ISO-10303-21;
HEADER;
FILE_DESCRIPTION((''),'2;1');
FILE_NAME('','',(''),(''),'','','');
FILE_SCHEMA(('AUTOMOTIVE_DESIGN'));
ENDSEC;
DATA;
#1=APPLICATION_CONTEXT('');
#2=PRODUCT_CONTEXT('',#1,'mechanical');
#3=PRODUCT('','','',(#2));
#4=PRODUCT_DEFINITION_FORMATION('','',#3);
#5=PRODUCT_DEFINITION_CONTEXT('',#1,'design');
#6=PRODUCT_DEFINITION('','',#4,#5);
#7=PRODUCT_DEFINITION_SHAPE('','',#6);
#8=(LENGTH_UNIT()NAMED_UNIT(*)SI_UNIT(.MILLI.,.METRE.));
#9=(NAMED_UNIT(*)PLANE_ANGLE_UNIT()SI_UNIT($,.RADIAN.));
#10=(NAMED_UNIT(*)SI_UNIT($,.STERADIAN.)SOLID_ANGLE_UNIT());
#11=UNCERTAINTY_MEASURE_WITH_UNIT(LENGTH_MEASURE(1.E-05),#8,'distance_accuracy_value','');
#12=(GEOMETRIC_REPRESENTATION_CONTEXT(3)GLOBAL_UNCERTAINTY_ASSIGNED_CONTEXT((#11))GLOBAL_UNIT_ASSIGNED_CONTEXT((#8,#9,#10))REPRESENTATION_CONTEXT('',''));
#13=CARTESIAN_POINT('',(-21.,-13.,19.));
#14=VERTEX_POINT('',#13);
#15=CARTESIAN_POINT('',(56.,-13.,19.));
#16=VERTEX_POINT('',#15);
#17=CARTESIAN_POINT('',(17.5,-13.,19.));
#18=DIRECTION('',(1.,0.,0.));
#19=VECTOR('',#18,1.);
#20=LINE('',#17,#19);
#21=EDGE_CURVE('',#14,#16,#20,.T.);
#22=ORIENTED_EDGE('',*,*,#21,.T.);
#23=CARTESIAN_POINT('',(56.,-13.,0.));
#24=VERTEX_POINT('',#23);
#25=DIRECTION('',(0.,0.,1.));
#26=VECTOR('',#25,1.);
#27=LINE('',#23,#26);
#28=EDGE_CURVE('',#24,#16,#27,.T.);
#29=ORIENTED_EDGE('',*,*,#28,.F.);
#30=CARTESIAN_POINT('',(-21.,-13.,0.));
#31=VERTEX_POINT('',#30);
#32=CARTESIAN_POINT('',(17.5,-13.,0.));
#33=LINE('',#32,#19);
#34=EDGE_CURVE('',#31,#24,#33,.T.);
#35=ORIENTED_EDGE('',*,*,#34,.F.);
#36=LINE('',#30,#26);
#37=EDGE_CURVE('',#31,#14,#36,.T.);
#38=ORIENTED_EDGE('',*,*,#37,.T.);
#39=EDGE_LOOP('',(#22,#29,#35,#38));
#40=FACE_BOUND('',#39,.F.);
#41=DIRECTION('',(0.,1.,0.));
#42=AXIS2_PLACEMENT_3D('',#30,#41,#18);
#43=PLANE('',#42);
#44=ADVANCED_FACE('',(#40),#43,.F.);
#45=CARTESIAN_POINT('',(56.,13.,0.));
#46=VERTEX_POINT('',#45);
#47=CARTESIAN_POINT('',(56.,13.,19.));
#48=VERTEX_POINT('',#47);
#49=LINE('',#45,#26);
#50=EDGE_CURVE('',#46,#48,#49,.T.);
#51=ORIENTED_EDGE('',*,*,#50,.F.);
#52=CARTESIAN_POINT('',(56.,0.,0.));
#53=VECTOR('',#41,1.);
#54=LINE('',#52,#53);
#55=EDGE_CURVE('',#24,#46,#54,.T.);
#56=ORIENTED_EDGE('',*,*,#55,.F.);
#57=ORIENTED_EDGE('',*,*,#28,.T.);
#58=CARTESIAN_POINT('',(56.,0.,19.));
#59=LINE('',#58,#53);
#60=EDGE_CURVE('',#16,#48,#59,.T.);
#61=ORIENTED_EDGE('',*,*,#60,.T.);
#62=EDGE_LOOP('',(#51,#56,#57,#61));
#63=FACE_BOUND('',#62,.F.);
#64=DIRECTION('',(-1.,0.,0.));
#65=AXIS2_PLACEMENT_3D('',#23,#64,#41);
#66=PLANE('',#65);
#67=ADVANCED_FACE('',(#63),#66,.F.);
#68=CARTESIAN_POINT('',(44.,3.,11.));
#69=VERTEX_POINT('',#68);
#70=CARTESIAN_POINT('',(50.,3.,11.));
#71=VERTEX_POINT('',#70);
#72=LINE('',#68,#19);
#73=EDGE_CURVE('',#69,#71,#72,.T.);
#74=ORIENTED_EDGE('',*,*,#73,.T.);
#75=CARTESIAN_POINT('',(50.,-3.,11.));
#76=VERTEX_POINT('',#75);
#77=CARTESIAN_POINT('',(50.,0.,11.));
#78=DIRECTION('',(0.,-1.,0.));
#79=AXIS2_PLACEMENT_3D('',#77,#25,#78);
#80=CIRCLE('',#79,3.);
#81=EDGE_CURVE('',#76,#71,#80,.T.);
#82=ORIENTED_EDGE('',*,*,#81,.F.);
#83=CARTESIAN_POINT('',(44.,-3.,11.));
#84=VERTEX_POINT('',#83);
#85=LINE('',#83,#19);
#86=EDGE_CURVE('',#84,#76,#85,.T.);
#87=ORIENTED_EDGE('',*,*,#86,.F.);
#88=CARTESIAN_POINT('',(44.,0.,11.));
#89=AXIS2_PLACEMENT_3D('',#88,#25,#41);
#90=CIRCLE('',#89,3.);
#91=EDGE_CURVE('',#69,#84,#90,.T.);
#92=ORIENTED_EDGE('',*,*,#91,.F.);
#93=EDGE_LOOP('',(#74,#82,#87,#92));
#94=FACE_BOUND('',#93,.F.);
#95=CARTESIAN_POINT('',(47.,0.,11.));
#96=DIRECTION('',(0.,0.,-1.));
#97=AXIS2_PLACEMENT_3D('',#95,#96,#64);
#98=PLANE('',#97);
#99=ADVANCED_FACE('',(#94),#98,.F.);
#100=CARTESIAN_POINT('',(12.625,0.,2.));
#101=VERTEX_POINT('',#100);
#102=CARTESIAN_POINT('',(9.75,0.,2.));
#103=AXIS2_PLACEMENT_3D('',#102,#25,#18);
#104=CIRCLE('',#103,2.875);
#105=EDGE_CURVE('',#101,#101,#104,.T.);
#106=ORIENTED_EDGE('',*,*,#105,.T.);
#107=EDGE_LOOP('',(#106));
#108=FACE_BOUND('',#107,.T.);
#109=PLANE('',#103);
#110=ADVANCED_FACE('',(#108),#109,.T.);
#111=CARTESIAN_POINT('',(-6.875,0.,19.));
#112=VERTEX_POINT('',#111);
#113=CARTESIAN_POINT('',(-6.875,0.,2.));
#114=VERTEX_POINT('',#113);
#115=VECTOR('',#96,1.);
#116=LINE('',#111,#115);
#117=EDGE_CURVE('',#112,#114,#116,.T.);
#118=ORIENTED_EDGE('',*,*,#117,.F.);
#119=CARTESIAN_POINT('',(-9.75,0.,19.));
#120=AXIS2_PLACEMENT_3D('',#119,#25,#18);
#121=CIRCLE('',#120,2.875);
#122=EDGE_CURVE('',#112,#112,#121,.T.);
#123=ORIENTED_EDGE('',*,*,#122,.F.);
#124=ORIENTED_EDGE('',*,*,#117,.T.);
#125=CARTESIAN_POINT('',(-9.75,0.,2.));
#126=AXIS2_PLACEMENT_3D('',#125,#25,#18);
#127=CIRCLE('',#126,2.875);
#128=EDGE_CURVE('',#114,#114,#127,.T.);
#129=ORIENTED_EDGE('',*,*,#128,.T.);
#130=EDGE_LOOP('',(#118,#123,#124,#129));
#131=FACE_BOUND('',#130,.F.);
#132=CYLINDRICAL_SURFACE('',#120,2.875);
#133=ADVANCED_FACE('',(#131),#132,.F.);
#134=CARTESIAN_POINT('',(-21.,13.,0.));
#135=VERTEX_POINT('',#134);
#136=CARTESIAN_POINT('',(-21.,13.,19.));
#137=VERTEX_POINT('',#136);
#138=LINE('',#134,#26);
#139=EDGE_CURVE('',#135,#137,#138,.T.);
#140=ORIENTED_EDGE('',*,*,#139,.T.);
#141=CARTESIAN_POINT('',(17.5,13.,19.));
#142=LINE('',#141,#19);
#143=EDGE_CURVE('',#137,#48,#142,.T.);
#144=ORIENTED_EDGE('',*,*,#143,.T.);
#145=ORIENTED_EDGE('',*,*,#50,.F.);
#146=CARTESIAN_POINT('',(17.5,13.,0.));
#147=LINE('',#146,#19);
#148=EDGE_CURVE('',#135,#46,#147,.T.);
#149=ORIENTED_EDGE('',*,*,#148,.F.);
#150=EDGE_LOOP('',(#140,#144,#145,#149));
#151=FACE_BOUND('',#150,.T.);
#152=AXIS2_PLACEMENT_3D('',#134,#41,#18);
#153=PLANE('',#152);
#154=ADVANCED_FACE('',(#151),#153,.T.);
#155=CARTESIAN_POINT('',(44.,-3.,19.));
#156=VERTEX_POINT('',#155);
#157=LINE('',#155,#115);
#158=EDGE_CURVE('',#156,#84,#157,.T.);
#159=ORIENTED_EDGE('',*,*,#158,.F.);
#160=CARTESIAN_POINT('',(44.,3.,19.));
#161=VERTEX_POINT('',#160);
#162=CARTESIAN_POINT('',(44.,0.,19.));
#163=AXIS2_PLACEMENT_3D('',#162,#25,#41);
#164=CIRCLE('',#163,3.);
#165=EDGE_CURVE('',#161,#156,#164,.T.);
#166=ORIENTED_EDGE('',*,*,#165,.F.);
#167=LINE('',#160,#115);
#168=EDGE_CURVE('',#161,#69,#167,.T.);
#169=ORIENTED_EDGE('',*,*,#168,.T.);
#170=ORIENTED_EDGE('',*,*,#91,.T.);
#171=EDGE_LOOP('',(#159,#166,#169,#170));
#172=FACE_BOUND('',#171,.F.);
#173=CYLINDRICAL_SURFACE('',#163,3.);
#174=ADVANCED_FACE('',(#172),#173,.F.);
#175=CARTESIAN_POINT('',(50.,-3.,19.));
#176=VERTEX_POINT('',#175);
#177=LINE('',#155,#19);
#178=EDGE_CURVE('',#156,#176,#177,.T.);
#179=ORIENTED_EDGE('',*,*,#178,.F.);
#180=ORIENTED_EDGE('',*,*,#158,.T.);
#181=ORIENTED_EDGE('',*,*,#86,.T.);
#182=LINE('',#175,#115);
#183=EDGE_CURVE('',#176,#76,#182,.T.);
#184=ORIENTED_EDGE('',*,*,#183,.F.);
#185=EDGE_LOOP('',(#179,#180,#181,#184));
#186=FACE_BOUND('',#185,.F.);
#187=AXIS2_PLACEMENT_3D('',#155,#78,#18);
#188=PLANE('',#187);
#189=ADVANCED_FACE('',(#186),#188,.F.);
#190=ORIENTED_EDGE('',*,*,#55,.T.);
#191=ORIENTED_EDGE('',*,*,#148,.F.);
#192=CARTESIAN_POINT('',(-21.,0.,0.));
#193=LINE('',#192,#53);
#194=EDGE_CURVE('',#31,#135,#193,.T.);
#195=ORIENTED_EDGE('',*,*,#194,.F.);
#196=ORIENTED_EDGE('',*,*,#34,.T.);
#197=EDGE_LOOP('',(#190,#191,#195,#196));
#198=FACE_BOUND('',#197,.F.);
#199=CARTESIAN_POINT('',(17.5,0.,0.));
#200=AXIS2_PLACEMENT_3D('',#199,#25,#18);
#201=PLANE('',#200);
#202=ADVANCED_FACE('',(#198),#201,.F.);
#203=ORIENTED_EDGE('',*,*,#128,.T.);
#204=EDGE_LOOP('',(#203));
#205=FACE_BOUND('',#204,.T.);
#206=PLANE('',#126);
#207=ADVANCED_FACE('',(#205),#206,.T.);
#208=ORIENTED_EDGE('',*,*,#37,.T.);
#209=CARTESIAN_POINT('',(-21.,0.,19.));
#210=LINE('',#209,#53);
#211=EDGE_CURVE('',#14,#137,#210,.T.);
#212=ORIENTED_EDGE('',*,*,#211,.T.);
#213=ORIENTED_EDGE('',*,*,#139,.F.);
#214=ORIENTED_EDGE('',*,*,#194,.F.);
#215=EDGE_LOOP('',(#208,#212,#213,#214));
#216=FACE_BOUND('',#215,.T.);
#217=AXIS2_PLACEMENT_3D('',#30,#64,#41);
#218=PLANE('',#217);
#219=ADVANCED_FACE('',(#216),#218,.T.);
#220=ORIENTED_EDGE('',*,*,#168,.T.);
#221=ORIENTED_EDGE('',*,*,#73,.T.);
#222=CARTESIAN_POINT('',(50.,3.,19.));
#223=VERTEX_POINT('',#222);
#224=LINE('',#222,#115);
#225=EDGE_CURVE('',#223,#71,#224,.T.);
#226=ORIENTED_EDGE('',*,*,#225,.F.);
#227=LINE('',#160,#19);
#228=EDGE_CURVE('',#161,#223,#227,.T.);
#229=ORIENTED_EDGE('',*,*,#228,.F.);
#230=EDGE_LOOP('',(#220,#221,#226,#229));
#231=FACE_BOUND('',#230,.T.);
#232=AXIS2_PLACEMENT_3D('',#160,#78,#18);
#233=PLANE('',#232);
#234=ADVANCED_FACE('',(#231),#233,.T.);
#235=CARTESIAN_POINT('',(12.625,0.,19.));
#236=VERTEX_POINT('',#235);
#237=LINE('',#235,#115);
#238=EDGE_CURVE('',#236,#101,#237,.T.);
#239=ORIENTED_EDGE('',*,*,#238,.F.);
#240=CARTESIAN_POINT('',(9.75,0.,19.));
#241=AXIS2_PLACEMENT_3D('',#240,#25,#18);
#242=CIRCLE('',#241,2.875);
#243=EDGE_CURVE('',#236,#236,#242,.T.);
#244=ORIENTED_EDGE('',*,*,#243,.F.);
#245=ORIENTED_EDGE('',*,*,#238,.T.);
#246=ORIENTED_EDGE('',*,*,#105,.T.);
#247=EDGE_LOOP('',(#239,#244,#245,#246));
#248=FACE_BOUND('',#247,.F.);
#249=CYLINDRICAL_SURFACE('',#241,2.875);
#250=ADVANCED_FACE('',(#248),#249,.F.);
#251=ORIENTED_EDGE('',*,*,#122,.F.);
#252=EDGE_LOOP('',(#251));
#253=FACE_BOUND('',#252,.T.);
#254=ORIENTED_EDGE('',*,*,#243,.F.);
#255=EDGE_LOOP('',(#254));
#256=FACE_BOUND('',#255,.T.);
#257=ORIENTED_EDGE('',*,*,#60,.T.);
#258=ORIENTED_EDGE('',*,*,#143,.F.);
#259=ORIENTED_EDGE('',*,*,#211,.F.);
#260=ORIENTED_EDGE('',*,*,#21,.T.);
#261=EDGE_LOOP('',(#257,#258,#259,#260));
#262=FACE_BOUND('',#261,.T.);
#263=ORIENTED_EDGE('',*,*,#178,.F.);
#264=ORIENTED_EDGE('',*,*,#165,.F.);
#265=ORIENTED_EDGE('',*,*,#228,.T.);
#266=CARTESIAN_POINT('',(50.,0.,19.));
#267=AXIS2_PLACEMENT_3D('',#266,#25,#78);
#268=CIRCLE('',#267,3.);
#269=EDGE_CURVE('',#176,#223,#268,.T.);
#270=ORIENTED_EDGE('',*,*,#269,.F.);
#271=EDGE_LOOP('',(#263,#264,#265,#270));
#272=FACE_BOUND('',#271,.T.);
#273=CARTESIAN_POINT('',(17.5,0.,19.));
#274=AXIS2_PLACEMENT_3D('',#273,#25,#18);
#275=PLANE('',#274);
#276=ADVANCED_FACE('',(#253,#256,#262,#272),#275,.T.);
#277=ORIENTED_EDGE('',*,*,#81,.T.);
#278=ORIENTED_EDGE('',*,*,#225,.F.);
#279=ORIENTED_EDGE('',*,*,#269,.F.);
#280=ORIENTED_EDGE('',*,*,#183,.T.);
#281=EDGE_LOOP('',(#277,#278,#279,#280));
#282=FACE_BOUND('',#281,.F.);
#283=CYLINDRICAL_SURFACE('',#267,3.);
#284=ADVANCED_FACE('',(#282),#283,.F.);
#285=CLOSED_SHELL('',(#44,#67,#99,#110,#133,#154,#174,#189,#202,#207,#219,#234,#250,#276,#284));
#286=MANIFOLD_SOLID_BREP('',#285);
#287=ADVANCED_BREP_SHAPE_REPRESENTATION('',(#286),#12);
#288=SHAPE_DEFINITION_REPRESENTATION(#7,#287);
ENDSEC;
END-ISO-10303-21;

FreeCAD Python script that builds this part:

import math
import FreeCAD as App
import Part
import Sketcher

V = App.Vector


def add_polygon(sketch, points):
    """Adds a closed chain of lines whose ends are joined by coincident constraints."""
    first, n = sketch.GeometryCount, len(points)
    for a, b in zip(points, points[1:] + points[:1]):
        sketch.addGeometry(Part.LineSegment(App.Vector(*a, 0), App.Vector(*b, 0)), False)
    for i in range(n):
        sketch.addConstraint(Sketcher.Constraint("Coincident", first + i, 2, first + (i + 1) % n, 1))

doc = App.newDocument("Part")
body = doc.addObject("PartDesign::Body", "Body")

sketch1 = doc.addObject("Sketcher::SketchObject", "Sketch")
body.addObject(sketch1)
sketch1.AttachmentSupport = (doc.XY_Plane, [""])
sketch1.MapMode = "FlatFace"
add_polygon(sketch1, [(-21, 13), (-21, -13), (56, -13), (56, 13)])
sketch1.addConstraint(Sketcher.Constraint("Vertical", 0))
sketch1.addConstraint(Sketcher.Constraint("Horizontal", 1))
sketch1.addConstraint(Sketcher.Constraint("Vertical", 2))
sketch1.addConstraint(Sketcher.Constraint("Horizontal", 3))
sketch1.addConstraint(Sketcher.Constraint("DistanceX", 1, 1, 1, 2, 77.0))
sketch1.addConstraint(Sketcher.Constraint("DistanceY", 0, 2, 0, 1, 26.0))
sketch1.addConstraint(Sketcher.Constraint("DistanceX", 0, 2, -1, 1, 21.0))
sketch1.addConstraint(Sketcher.Constraint("DistanceY", 0, 2, -1, 1, 13.0))
pad1 = doc.addObject("PartDesign::Pad", "Pad")
body.addObject(pad1)
pad1.Profile = sketch1
pad1.Length = 19

sketch2 = doc.addObject("Sketcher::SketchObject", "Sketch001")
body.addObject(sketch2)
sketch2.AttachmentSupport = (doc.XY_Plane, [""])
sketch2.MapMode = "FlatFace"
sketch2.AttachmentOffset = App.Placement(V(0, 0, 19), App.Rotation())
sketch2.addGeometry(Part.Circle(V(-9.8, 0, 0), V(0, 0, 1), 2.9), False)
sketch2.addGeometry(Part.Circle(V(9.8, 0, 0), V(0, 0, 1), 2.9), False)
sketch2.addConstraint(Sketcher.Constraint("Equal", 0, 1))
sketch2.addConstraint(Sketcher.Constraint("Symmetric", 0, 3, 1, 3, -1, 1))
sketch2.addConstraint(Sketcher.Constraint("PointOnObject", 0, 3, -1))
sketch2.addConstraint(Sketcher.Constraint("Diameter", 0, 5.75))
sketch2.addConstraint(Sketcher.Constraint("DistanceX", 0, 3, 1, 3, 19.5))
pocket1 = doc.addObject("PartDesign::Pocket", "Pocket")
body.addObject(pocket1)
pocket1.Profile = sketch2
pocket1.Length = 17

sketch3 = doc.addObject("Sketcher::SketchObject", "Sketch002")
body.addObject(sketch3)
sketch3.AttachmentSupport = (doc.XY_Plane, [""])
sketch3.MapMode = "FlatFace"
sketch3.AttachmentOffset = App.Placement(V(0, 0, 19), App.Rotation())
sketch3.addGeometry(Part.LineSegment(V(50, 3, 0), V(44, 3, 0)), False)
sketch3.addGeometry(Part.ArcOfCircle(Part.Circle(V(44, 0, 0), V(0, 0, 1), 3), math.radians(90), math.radians(270)), False)
sketch3.addGeometry(Part.LineSegment(V(44, -3, 0), V(50, -3, 0)), False)
sketch3.addGeometry(Part.ArcOfCircle(Part.Circle(V(50, 0, 0), V(0, 0, 1), 3), math.radians(-90), math.radians(90)), False)
sketch3.addConstraint(Sketcher.Constraint("Tangent", 0, 2, 1, 1))
sketch3.addConstraint(Sketcher.Constraint("Tangent", 1, 2, 2, 1))
sketch3.addConstraint(Sketcher.Constraint("Tangent", 2, 2, 3, 1))
sketch3.addConstraint(Sketcher.Constraint("Tangent", 3, 2, 0, 1))
sketch3.addConstraint(Sketcher.Constraint("Horizontal", 0))
sketch3.addConstraint(Sketcher.Constraint("Horizontal", 2))
sketch3.addConstraint(Sketcher.Constraint("PointOnObject", 1, 3, -1))
sketch3.addConstraint(Sketcher.Constraint("Radius", 1, 3.0))
sketch3.addConstraint(Sketcher.Constraint("DistanceX", 0, 2, 0, 1, 6.0))
sketch3.addConstraint(Sketcher.Constraint("DistanceX", -1, 1, 1, 3, 44.0))
pocket2 = doc.addObject("PartDesign::Pocket", "Pocket001")
body.addObject(pocket2)
pocket2.Profile = sketch3
pocket2.Length = 8

doc.recompute()
